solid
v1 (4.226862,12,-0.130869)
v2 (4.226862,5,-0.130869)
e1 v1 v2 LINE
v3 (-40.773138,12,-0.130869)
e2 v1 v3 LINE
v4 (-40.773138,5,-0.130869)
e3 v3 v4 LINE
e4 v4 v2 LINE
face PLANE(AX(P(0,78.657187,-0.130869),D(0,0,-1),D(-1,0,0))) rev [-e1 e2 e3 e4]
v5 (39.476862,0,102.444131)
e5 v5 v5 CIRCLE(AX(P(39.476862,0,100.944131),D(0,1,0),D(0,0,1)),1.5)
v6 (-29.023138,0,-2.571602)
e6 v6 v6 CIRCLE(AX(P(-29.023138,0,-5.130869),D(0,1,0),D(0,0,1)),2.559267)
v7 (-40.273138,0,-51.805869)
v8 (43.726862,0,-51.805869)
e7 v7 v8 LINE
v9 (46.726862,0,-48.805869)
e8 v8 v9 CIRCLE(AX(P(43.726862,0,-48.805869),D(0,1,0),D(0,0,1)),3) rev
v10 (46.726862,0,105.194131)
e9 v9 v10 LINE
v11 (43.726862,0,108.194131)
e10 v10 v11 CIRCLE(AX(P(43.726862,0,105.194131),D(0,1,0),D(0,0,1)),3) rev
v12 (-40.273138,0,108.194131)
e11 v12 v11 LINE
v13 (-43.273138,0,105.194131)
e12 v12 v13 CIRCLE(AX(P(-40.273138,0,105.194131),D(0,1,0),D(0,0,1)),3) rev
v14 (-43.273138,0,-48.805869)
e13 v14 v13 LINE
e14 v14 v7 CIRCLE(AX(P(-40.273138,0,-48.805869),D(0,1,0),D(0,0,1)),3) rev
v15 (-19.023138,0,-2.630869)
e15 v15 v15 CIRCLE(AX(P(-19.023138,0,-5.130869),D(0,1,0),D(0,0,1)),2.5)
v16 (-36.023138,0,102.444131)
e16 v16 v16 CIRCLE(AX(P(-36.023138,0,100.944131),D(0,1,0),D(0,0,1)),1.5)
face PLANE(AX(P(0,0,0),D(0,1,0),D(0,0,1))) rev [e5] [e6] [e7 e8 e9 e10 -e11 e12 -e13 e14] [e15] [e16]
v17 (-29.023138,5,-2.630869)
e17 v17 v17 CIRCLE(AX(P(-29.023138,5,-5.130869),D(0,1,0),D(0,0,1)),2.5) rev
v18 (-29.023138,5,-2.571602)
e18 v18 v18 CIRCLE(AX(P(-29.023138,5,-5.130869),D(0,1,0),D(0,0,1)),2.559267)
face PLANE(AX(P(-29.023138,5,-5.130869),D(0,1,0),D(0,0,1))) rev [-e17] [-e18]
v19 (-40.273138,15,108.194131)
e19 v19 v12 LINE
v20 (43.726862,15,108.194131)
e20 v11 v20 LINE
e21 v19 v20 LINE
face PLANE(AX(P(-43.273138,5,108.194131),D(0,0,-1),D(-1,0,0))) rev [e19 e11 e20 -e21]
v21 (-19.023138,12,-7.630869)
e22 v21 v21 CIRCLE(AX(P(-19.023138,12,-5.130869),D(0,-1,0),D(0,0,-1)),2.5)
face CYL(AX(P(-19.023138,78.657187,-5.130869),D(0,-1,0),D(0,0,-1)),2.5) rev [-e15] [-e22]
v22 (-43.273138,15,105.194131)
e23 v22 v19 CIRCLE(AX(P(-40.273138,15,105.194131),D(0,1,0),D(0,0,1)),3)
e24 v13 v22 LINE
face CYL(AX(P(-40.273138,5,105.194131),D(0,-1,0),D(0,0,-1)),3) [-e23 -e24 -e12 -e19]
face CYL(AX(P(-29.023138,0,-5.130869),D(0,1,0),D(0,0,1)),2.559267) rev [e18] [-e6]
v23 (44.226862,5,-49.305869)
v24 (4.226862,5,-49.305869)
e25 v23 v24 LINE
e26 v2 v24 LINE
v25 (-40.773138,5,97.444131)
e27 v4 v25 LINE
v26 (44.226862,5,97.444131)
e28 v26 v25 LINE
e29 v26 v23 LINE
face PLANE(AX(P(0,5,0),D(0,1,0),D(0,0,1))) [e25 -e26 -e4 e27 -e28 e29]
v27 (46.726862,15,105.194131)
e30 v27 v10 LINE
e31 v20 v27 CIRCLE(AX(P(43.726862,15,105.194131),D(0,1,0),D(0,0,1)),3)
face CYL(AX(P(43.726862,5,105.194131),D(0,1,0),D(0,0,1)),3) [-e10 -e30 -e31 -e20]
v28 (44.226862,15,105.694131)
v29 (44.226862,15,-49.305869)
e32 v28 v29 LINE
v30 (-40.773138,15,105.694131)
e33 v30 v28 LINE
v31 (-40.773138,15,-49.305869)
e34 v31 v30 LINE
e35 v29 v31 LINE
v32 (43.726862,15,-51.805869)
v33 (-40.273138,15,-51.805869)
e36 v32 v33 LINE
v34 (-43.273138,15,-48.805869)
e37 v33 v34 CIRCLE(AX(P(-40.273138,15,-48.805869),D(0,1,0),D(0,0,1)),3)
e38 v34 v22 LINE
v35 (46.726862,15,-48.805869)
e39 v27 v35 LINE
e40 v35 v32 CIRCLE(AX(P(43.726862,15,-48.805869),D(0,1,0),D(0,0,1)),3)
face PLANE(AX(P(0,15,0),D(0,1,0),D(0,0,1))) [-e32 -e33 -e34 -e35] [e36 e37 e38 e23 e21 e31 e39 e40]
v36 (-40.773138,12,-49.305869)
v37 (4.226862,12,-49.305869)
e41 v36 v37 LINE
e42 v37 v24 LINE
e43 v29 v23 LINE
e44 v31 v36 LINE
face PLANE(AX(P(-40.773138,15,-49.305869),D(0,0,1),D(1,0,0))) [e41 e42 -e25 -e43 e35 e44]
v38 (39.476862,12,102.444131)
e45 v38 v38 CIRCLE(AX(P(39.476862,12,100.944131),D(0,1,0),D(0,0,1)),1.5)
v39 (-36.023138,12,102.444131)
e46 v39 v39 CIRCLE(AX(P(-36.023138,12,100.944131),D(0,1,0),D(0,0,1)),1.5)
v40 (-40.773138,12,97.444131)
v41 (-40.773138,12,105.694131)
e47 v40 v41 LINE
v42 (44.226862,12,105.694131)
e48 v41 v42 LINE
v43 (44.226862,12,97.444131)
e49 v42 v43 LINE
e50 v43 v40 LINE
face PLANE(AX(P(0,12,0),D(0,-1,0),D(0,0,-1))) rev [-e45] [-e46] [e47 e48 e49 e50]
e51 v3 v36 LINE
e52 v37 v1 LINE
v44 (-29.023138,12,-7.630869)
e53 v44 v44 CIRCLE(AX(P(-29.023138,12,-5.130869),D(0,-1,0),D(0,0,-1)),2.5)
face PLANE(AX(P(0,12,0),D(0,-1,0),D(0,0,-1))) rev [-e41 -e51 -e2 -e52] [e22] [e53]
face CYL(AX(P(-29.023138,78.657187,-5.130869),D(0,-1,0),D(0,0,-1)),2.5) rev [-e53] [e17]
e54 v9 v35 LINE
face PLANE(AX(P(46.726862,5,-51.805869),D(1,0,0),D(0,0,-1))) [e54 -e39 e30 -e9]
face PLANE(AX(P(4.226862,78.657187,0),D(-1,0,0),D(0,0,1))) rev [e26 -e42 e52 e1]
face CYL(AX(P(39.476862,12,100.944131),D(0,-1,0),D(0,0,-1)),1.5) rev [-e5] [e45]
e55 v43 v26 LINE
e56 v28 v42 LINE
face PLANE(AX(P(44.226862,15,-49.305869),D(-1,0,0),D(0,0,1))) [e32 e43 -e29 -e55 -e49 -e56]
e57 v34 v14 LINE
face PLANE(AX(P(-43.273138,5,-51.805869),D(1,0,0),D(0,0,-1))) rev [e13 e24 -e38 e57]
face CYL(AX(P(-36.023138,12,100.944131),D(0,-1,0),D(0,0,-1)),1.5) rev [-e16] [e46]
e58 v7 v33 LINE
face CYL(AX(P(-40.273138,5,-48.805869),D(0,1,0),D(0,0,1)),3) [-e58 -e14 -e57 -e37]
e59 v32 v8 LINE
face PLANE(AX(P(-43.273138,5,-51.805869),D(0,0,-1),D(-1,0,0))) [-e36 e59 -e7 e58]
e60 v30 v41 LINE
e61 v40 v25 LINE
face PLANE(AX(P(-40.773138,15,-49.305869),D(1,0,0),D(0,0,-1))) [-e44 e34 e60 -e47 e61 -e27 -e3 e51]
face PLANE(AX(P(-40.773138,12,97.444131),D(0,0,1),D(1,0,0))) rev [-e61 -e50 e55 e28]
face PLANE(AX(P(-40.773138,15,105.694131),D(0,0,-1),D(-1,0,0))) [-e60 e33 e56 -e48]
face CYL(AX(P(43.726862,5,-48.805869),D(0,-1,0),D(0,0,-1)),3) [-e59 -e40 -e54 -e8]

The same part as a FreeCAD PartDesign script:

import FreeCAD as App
import Part
import Sketcher

V = App.Vector


def edges_at(feature, points):
    """Names of the edges that pass closest to the given points."""
    edges = feature.Shape.Edges
    near = lambda p: min(range(len(edges)), key=lambda i: edges[i].distToShape(Part.Vertex(*p))[0])
    return sorted({f"Edge{near(p) + 1}" for p in points})

doc = App.newDocument("Part")
body = doc.addObject("PartDesign::Body", "Body")

# Sketch on XZ plane
sketch1 = body.newObject("Sketcher::SketchObject", "Sketch")
sketch1.AttachmentSupport = (doc.getObject("XZ_Plane"), [""])
sketch1.MapMode = "FlatFace"
sketch1.addGeometry([
    Part.LineSegment(V(-43, -52, 0), V(-43, 108, 0)),
    Part.LineSegment(V(-43, 108, 0), V(47, 108, 0)),
    Part.LineSegment(V(47, 108, 0), V(47, -52, 0)),
    Part.LineSegment(V(47, -52, 0), V(-43, -52, 0)),
], False)
sketch1.addConstraint([
    Sketcher.Constraint("Coincident", 0, 2, 1, 1),
    Sketcher.Constraint("Coincident", 1, 2, 2, 1),
    Sketcher.Constraint("Coincident", 2, 2, 3, 1),
    Sketcher.Constraint("Coincident", 3, 2, 0, 1),
    Sketcher.Constraint("Vertical", 0),
    Sketcher.Constraint("Horizontal", 1),
    Sketcher.Constraint("Vertical", 2),
    Sketcher.Constraint("Horizontal", 3),
    Sketcher.Constraint("DistanceX", 1, 1, 1, 2, 90.0),
    Sketcher.Constraint("DistanceY", 0, 1, 0, 2, 160.0),
    Sketcher.Constraint("DistanceY", -1, 1, 0, 2, 108.194131),
    Sketcher.Constraint("DistanceX", 0, 2, -1, 1, 43.273138),
])
pad1 = body.newObject("PartDesign::Pad", "Pad")
pad1.Profile = sketch1
pad1.Length = 5
pad1.Reversed = True

# Sketch on XZ plane
sketch2 = body.newObject("Sketcher::SketchObject", "Sketch001")
sketch2.AttachmentSupport = (doc.getObject("XZ_Plane"), [""])
sketch2.MapMode = "FlatFace"
sketch2.AttachmentOffset = App.Placement(V(0, 0, -5), App.Rotation())
sketch2.addGeometry([
    Part.LineSegment(V(-43, -52, 0), V(-43, 108, 0)),  # 0
    Part.LineSegment(V(-43, 108, 0), V(47, 108, 0)),  # 1
    Part.LineSegment(V(47, 108, 0), V(47, -52, 0)),  # 2
    Part.LineSegment(V(47, -52, 0), V(-43, -52, 0)),  # 3
    Part.LineSegment(V(44, 106, 0), V(-41, 106, 0)),  # 4
    Part.LineSegment(V(-41, 106, 0), V(-41, -49, 0)),  # 5
    Part.LineSegment(V(-41, -49, 0), V(44, -49, 0)),  # 6
    Part.LineSegment(V(44, -49, 0), V(44, 106, 0)),  # 7
], False)
sketch2.addConstraint([
    Sketcher.Constraint("Coincident", 0, 2, 1, 1),
    Sketcher.Constraint("Coincident", 1, 2, 2, 1),
    Sketcher.Constraint("Coincident", 2, 2, 3, 1),
    Sketcher.Constraint("Coincident", 3, 2, 0, 1),
    Sketcher.Constraint("Coincident", 4, 2, 5, 1),
    Sketcher.Constraint("Coincident", 5, 2, 6, 1),
    Sketcher.Constraint("Coincident", 6, 2, 7, 1),
    Sketcher.Constraint("Coincident", 7, 2, 4, 1),
    Sketcher.Constraint("Vertical", 0),
    Sketcher.Constraint("Horizontal", 1),
    Sketcher.Constraint("Vertical", 2),
    Sketcher.Constraint("Horizontal", 3),
    Sketcher.Constraint("Horizontal", 4),
    Sketcher.Constraint("Vertical", 5),
    Sketcher.Constraint("Horizontal", 6),
    Sketcher.Constraint("Vertical", 7),
    Sketcher.Constraint("DistanceX", 1, 1, 1, 2, 90.0),
    Sketcher.Constraint("DistanceX", 4, 2, 4, 1, 85.0),
    Sketcher.Constraint("DistanceY", 0, 1, 0, 2, 160.0),
    Sketcher.Constraint("DistanceY", 5, 2, 5, 1, 155.0),
    Sketcher.Constraint("DistanceX", 0, 2, 4, 2, 2.5),
    Sketcher.Constraint("DistanceY", 4, 2, 0, 2, 2.5),
    Sketcher.Constraint("DistanceY", -1, 1, 0, 2, 108.194131),
    Sketcher.Constraint("DistanceX", 0, 2, -1, 1, 43.273138),
])
pad2 = body.newObject("PartDesign::Pad", "Pad001")
pad2.Profile = sketch2
pad2.Length = 10
pad2.Reversed = True

# Sketch on XZ plane
sketch3 = body.newObject("Sketcher::SketchObject", "Sketch002")
sketch3.AttachmentSupport = (doc.getObject("XZ_Plane"), [""])
sketch3.MapMode = "FlatFace"
sketch3.AttachmentOffset = App.Placement(V(0, 0, -5), App.Rotation())
sketch3.addGeometry([
    Part.LineSegment(V(-40.8, 97.4, 0), V(-40.8, 105.7, 0)),  # 0
    Part.LineSegment(V(-40.8, 105.7, 0), V(44.2, 105.7, 0)),  # 1
    Part.LineSegment(V(44.2, 105.7, 0), V(44.2, 97.4, 0)),  # 2
    Part.LineSegment(V(44.2, 97.4, 0), V(-40.8, 97.4, 0)),  # 3
    Part.Circle(V(-36, 100.9, 0), V(0, 0, 1), 1.5),  # 4
    Part.Circle(V(39.5, 100.9, 0), V(0, 0, 1), 1.5),  # 5
], False)
sketch3.addConstraint([
    Sketcher.Constraint("Coincident", 0, 2, 1, 1),
    Sketcher.Constraint("Coincident", 1, 2, 2, 1),
    Sketcher.Constraint("Coincident", 2, 2, 3, 1),
    Sketcher.Constraint("Coincident", 3, 2, 0, 1),
    Sketcher.Constraint("Vertical", 0),
    Sketcher.Constraint("Horizontal", 1),
    Sketcher.Constraint("Vertical", 2),
    Sketcher.Constraint("Horizontal", 3),
    Sketcher.Constraint("Equal", 4, 5),
    Sketcher.Constraint("Horizontal", 4, 3, 5, 3),
    Sketcher.Constraint("Diameter", 4, 3.0),
    Sketcher.Constraint("DistanceX", 1, 1, 1, 2, 85.0),
    Sketcher.Constraint("DistanceY", 0, 1, 0, 2, 8.25),
    Sketcher.Constraint("DistanceX", 4, 3, 5, 3, 75.5),
    Sketcher.Constraint("DistanceY", 2, 2, 5, 3, 3.5),
    Sketcher.Constraint("DistanceX", 0, 2, 4, 3, 4.75),
    Sketcher.Constraint("DistanceY", -1, 1, 4, 3, 100.944131),
    Sketcher.Constraint("DistanceX", 4, 3, -1, 1, 36.023138),
])
pad3 = body.newObject("PartDesign::Pad", "Pad002")
pad3.Profile = sketch3
pad3.Length = 7
pad3.Reversed = True

# Sketch on XZ plane
sketch4 = body.newObject("Sketcher::SketchObject", "Sketch003")
sketch4.AttachmentSupport = (doc.getObject("XZ_Plane"), [""])
sketch4.MapMode = "FlatFace"
sketch4.AttachmentOffset = App.Placement(V(0, 0, -5), App.Rotation())
sketch4.addGeometry([
    Part.LineSegment(V(-40.8, -49.3, 0), V(-40.8, -0.1, 0)),  # 0
    Part.LineSegment(V(-40.8, -0.1, 0), V(4.2, -0.1, 0)),  # 1
    Part.LineSegment(V(4.2, -0.1, 0), V(4.2, -49.3, 0)),  # 2
    Part.LineSegment(V(4.2, -49.3, 0), V(-40.8, -49.3, 0)),  # 3
    Part.Circle(V(-19, -5.1, 0), V(0, 0, 1), 2.5),  # 4
    Part.Circle(V(-29, -5.1, 0), V(0, 0, 1), 2.5),  # 5
], False)
sketch4.addConstraint([
    Sketcher.Constraint("Coincident", 0, 2, 1, 1),
    Sketcher.Constraint("Coincident", 1, 2, 2, 1),
    Sketcher.Constraint("Coincident", 2, 2, 3, 1),
    Sketcher.Constraint("Coincident", 3, 2, 0, 1),
    Sketcher.Constraint("Vertical", 0),
    Sketcher.Constraint("Horizontal", 1),
    Sketcher.Constraint("Vertical", 2),
    Sketcher.Constraint("Horizontal", 3),
    Sketcher.Constraint("Equal", 4, 5),
    Sketcher.Constraint("Horizontal", 4, 3, 5, 3),
    Sketcher.Constraint("Diameter", 4, 5.0),
    Sketcher.Constraint("DistanceX", 1, 1, 1, 2, 45.0),
    Sketcher.Constraint("DistanceX", 5, 3, 4, 3, 10.0),
    Sketcher.Constraint("DistanceY", 5, 3, 0, 2, 5.0),
    Sketcher.Constraint("DistanceY", 0, 1, 0, 2, 49.175),
    Sketcher.Constraint("DistanceX", 0, 2, 5, 3, 11.75),
    Sketcher.Constraint("DistanceY", 4, 3, -1, 1, 5.130869),
    Sketcher.Constraint("DistanceX", 4, 3, -1, 1, 19.023138),
])
pad4 = body.newObject("PartDesign::Pad", "Pad003")
pad4.Profile = sketch4
pad4.Length = 7
pad4.Reversed = True
doc.recompute()

fillet = body.newObject("PartDesign::Fillet", "Fillet")
fillet.Base = (pad4, edges_at(pad4, [
    (-43.273, 7.5, -51.806),
    (46.727, 7.5, -51.806),
    (46.727, 7.5, 108.194),
    (-43.273, 7.5, 108.194),
]))
fillet.Radius = 3

# Sketch on XZ plane
sketch5 = body.newObject("Sketcher::SketchObject", "Sketch004")
sketch5.AttachmentSupport = (doc.getObject("XZ_Plane"), [""])
sketch5.MapMode = "FlatFace"
sketch5.AttachmentOffset = App.Placement(V(0, 0, -5), App.Rotation())
sketch5.addGeometry([
    Part.Circle(V(-19, -5.1, 0), V(0, 0, 1), 2.5),
    Part.Circle(V(-29, -5.1, 0), V(0, 0, 1), 2.6),
    Part.Circle(V(-36, 100.9, 0), V(0, 0, 1), 1.5),
    Part.Circle(V(39.5, 100.9, 0), V(0, 0, 1), 1.5),
], False)
sketch5.addConstraint([
    Sketcher.Constraint("Equal", 2, 3),
    Sketcher.Constraint("Horizontal", 0, 3, 1, 3),
    Sketcher.Constraint("Horizontal", 2, 3, 3, 3),
    Sketcher.Constraint("Diameter", 0, 5.0),
    Sketcher.Constraint("Diameter", 2, 3.0),
    Sketcher.Constraint("DistanceX", 1, 3, 0, 3, 10.0),
    Sketcher.Constraint("DistanceX", 2, 3, 1, 3, 7.0),
    Sketcher.Constraint("DistanceX", 2, 3, 3, 3, 75.5),
    Sketcher.Constraint("Diameter", 1, 5.118533),
    Sketcher.Constraint("DistanceY", 1, 3, 2, 3, 106.075),
    Sketcher.Constraint("DistanceY", 0, 3, -1, 1, 5.130869),
    Sketcher.Constraint("DistanceX", 0, 3, -1, 1, 19.023138),
])
pocket1 = body.newObject("PartDesign::Pocket", "Pocket")
pocket1.Profile = sketch5
pocket1.Type = "ThroughAll"
pocket1.Reversed = True

doc.recompute()
